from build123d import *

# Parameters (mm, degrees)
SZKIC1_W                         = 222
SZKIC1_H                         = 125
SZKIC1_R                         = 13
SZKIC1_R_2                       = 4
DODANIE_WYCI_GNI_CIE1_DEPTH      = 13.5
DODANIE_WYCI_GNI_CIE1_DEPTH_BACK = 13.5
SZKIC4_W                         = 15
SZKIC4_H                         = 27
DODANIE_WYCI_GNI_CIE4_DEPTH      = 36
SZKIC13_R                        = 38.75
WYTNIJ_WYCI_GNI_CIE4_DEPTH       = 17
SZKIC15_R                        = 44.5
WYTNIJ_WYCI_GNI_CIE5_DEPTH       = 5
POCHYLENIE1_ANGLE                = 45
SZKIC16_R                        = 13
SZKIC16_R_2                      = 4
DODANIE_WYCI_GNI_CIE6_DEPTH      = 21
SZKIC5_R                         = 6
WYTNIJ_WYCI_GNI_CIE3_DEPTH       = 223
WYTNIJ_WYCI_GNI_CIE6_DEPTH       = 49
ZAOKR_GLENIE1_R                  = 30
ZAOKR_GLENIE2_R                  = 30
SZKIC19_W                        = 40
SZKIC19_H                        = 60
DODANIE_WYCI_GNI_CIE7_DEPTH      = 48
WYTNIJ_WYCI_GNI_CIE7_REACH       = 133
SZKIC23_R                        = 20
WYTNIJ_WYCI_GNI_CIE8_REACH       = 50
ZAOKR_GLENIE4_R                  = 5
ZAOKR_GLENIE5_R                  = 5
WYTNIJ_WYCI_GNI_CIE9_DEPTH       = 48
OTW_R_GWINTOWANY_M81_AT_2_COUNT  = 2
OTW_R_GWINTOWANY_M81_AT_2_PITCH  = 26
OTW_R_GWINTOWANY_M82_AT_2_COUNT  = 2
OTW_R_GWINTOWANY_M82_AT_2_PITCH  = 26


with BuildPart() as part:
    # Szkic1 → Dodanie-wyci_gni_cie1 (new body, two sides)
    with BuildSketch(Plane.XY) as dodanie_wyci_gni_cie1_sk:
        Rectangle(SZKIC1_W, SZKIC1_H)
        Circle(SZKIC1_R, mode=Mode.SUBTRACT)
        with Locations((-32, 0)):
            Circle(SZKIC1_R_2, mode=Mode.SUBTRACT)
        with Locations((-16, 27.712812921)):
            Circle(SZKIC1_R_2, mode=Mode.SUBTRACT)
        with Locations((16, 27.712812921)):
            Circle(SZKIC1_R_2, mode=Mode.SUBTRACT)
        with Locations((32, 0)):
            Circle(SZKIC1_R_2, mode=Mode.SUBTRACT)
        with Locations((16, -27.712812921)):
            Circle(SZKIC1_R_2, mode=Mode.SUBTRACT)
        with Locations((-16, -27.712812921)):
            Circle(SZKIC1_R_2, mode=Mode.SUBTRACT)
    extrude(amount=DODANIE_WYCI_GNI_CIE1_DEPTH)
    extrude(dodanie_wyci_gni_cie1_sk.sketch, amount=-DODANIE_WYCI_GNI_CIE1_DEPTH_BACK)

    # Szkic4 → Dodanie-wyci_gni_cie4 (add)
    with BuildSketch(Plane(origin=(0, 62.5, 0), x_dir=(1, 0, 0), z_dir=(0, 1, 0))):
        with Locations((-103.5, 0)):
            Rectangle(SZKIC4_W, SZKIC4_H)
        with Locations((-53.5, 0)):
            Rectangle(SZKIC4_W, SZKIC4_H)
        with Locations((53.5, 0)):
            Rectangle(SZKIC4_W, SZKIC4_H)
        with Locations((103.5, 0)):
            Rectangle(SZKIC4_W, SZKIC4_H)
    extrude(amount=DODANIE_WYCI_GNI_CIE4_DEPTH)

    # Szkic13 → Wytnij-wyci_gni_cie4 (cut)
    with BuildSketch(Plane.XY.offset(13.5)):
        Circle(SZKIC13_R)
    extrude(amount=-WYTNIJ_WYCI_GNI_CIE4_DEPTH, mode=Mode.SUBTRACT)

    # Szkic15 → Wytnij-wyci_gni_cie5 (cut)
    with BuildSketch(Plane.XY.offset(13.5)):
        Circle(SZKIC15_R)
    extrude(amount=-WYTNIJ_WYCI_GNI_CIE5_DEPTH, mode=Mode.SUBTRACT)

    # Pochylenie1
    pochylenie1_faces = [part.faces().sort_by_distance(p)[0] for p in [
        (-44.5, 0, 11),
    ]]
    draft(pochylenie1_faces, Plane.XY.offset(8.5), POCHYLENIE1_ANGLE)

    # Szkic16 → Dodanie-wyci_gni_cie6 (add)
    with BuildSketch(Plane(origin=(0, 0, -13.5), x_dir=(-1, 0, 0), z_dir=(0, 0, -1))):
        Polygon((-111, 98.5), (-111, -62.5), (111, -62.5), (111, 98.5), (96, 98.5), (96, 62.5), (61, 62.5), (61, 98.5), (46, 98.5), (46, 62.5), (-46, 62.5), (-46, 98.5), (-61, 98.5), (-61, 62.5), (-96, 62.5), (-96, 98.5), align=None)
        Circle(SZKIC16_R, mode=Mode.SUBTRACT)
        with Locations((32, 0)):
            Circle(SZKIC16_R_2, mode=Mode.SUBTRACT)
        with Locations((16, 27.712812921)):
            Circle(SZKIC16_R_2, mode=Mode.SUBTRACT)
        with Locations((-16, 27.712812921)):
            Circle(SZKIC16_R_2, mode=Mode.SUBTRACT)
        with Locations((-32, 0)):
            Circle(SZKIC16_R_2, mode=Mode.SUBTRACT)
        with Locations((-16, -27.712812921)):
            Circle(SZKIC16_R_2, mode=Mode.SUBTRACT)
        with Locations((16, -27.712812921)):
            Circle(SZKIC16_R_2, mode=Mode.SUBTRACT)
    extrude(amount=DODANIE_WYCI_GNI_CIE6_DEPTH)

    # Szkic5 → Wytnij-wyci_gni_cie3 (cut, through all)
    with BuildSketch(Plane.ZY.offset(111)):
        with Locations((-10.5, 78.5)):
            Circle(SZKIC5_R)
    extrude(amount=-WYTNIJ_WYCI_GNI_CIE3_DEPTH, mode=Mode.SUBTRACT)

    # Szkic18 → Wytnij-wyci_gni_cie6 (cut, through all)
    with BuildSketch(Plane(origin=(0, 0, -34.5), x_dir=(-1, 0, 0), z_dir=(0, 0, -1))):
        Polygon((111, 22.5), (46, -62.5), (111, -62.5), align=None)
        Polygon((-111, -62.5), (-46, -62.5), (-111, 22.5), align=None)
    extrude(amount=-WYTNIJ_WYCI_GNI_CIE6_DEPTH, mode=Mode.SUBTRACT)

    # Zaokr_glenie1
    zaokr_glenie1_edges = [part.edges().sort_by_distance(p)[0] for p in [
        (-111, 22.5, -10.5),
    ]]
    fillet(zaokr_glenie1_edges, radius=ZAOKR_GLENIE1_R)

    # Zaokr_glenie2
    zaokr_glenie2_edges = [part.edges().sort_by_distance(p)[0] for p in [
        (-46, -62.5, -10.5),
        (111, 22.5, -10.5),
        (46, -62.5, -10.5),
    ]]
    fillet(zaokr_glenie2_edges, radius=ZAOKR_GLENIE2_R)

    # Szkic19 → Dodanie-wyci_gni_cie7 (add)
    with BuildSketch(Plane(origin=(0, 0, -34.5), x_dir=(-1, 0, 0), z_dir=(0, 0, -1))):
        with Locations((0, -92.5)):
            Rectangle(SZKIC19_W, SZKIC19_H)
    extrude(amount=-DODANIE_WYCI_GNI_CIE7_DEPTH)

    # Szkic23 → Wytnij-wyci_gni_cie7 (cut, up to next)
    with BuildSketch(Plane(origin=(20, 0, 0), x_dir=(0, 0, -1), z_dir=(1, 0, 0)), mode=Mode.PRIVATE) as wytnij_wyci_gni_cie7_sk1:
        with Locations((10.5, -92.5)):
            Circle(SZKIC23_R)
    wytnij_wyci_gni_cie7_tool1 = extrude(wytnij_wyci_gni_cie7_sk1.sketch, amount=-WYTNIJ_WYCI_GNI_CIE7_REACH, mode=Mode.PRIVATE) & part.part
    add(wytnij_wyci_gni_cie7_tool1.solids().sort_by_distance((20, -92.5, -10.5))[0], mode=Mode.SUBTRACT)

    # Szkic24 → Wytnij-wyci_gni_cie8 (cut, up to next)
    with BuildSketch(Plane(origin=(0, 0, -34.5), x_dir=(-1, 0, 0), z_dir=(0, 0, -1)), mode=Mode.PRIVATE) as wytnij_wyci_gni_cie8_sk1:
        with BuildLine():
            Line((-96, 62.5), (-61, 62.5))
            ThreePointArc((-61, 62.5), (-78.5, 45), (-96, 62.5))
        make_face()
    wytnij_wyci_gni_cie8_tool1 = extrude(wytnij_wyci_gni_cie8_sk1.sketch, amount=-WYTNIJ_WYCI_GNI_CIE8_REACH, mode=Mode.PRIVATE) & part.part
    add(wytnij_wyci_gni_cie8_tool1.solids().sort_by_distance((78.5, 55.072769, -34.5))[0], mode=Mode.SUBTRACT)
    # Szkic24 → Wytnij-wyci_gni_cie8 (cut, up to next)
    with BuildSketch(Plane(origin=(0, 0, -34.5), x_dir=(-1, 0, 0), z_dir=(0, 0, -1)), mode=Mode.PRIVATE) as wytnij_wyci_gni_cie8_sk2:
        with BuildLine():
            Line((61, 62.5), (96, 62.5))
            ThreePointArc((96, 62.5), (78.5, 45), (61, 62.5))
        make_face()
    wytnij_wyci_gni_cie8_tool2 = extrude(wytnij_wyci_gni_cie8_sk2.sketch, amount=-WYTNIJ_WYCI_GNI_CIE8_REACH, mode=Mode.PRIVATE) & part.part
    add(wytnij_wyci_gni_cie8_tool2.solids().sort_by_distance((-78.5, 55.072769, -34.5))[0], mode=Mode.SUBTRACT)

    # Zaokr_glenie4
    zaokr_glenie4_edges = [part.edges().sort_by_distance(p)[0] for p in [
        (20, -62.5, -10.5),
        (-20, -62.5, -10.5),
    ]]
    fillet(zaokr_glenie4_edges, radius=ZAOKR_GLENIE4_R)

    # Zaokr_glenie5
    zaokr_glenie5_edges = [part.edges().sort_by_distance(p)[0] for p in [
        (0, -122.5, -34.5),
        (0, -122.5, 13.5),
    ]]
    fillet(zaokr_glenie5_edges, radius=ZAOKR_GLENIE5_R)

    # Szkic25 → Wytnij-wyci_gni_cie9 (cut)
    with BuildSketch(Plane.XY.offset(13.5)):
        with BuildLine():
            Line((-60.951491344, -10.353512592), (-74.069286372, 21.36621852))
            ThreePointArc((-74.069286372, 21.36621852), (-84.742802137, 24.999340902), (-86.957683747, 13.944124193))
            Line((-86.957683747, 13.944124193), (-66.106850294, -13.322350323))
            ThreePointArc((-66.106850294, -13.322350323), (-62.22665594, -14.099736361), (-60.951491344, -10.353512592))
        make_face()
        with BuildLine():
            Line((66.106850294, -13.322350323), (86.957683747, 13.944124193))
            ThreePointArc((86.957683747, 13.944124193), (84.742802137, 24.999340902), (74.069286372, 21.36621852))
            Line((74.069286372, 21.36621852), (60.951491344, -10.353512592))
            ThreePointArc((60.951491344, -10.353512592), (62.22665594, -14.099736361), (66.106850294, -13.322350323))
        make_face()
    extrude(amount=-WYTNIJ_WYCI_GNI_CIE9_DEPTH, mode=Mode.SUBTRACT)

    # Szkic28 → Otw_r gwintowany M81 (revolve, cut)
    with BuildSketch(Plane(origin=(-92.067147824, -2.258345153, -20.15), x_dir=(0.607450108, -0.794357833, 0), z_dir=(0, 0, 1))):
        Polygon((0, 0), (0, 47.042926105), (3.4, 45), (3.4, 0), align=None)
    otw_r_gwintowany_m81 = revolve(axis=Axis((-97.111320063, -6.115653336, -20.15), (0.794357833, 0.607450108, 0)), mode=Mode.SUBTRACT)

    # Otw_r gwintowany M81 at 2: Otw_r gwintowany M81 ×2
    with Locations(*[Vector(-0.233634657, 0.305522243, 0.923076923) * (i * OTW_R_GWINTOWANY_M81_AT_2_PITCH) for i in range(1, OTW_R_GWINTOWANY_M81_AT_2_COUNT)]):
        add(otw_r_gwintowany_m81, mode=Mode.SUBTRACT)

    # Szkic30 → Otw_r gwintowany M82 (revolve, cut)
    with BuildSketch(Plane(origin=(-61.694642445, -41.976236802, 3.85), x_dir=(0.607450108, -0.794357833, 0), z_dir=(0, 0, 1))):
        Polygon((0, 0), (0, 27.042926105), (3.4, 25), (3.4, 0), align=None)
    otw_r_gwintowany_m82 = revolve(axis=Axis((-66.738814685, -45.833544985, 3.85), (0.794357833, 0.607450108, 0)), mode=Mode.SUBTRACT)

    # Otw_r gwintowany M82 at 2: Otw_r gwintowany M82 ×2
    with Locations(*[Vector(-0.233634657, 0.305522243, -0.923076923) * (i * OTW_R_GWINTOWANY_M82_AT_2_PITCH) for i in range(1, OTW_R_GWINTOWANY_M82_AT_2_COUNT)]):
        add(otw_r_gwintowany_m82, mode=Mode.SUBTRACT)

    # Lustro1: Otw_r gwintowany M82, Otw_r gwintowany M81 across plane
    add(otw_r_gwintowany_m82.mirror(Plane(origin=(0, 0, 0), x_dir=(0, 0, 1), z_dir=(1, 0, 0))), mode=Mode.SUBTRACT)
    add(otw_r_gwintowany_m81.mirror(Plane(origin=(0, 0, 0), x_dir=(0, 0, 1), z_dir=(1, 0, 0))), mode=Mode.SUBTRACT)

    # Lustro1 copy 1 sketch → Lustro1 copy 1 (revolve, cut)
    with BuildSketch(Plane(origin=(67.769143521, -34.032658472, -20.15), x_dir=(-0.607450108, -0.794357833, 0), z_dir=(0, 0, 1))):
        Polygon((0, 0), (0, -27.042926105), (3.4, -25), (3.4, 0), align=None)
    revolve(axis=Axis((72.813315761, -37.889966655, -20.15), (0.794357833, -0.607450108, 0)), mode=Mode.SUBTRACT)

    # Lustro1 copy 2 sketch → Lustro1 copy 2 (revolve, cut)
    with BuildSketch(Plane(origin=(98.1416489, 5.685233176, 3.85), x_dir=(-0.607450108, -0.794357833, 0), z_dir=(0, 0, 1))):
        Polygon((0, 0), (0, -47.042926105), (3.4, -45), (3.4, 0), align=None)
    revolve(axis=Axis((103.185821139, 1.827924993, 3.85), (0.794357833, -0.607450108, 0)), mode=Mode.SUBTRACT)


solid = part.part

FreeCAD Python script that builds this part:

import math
import FreeCAD as App
import Part
import Sketcher

V = App.Vector


def edges_at(feature, points):
    """Names of the edges that pass closest to the given points."""
    edges = feature.Shape.Edges
    near = lambda p: min(range(len(edges)), key=lambda i: edges[i].distToShape(Part.Vertex(*p))[0])
    return sorted({f"Edge{near(p) + 1}" for p in points})


def faces_at(feature, points):
    """Names of the faces that lie closest to the given points."""
    faces = feature.Shape.Faces
    near = lambda p: min(range(len(faces)), key=lambda i: faces[i].distToShape(Part.Vertex(*p))[0])
    return sorted({f"Face{near(p) + 1}" for p in points})


def add_polygon(sketch, points):
    """Adds a closed chain of lines whose ends are joined by coincident constraints."""
    first, n = sketch.GeometryCount, len(points)
    for a, b in zip(points, points[1:] + points[:1]):
        sketch.addGeometry(Part.LineSegment(App.Vector(*a, 0), App.Vector(*b, 0)), False)
    for i in range(n):
        sketch.addConstraint(Sketcher.Constraint("Coincident", first + i, 2, first + (i + 1) % n, 1))

doc = App.newDocument("Part")
body = doc.addObject("PartDesign::Body", "Body")

sketch1 = doc.addObject("Sketcher::SketchObject", "Sketch")
body.addObject(sketch1)
sketch1.AttachmentSupport = (doc.XY_Plane, [""])
sketch1.MapMode = "FlatFace"
add_polygon(sketch1, [(-111, 62.5), (-111, -62.5), (111, -62.5), (111, 62.5)])
sketch1.addGeometry(Part.Circle(V(-16, -27.7, 0), V(0, 0, 1), 4), False)
sketch1.addGeometry(Part.Circle(V(16, -27.7, 0), V(0, 0, 1), 4), False)
sketch1.addGeometry(Part.Circle(V(-32, 0, 0), V(0, 0, 1), 4), False)
sketch1.addGeometry(Part.Circle(V(-16, 27.7, 0), V(0, 0, 1), 4), False)
sketch1.addGeometry(Part.Circle(V(0, 0, 0), V(0, 0, 1), 13), False)
sketch1.addGeometry(Part.Circle(V(32, 0, 0), V(0, 0, 1), 4), False)
sketch1.addGeometry(Part.Circle(V(16, 27.7, 0), V(0, 0, 1), 4), False)
sketch1.addConstraint([
    Sketcher.Constraint("Vertical", 0),
    Sketcher.Constraint("Horizontal", 1),
    Sketcher.Constraint("Vertical", 2),
    Sketcher.Constraint("Horizontal", 3),
    Sketcher.Constraint("Coincident", 8, 3, -1, 1),
    Sketcher.Constraint("Equal", 4, 5),
    Sketcher.Constraint("Equal", 5, 6),
    Sketcher.Constraint("Equal", 6, 7),
    Sketcher.Constraint("Equal", 7, 9),
    Sketcher.Constraint("Equal", 9, 10),
    Sketcher.Constraint("Symmetric", 5, 3, 7, 3, -1, 1),
    Sketcher.Constraint("Symmetric", 6, 3, 9, 3, -1, 1),
    Sketcher.Constraint("Symmetric", 4, 3, 10, 3, -1, 1),
    Sketcher.Constraint("Symmetric", 0, 2, 2, 2, -1, 1),
    Sketcher.Constraint("Symmetric", 4, 3, 5, 3, -2),
    Sketcher.Constraint("PointOnObject", 6, 3, -1),
    Sketcher.Constraint("Diameter", 4, 8.0),
    Sketcher.Constraint("Diameter", 8, 26.0),
    Sketcher.Constraint("DistanceX", 1, 1, 1, 2, 222.0),
    Sketcher.Constraint("DistanceY", 0, 2, 0, 1, 125.0),
    Sketcher.Constraint("DistanceX", 4, 3, -1, 1, 16.0),
    Sketcher.Constraint("DistanceX", 6, 3, -1, 1, 32.0),
    Sketcher.Constraint("DistanceY", 4, 3, -1, 1, 27.712813),
])
pad1 = doc.addObject("PartDesign::Pad", "Pad")
body.addObject(pad1)
pad1.Profile = sketch1
pad1.Type = "TwoLengths"
pad1.Length = 13.5
pad1.Length2 = 13.5

sketch2 = doc.addObject("Sketcher::SketchObject", "Sketch001")
body.addObject(sketch2)
sketch2.AttachmentSupport = (doc.XZ_Plane, [""])
sketch2.MapMode = "FlatFace"
sketch2.AttachmentOffset = App.Placement(V(0, 0, -62.5), App.Rotation())
add_polygon(sketch2, [(-111, -14), (-111, 14), (-96, 14), (-96, -14)])
add_polygon(sketch2, [(-61, -14), (-61, 14), (-46, 14), (-46, -14)])
add_polygon(sketch2, [(46, -14), (46, 14), (61, 14), (61, -14)])
add_polygon(sketch2, [(96, -14), (96, 14), (111, 14), (111, -14)])
sketch2.addConstraint([
    Sketcher.Constraint("Vertical", 0),
    Sketcher.Constraint("Horizontal", 1),
    Sketcher.Constraint("Vertical", 2),
    Sketcher.Constraint("Horizontal", 3),
    Sketcher.Constraint("Vertical", 4),
    Sketcher.Constraint("Horizontal", 5),
    Sketcher.Constraint("Vertical", 6),
    Sketcher.Constraint("Horizontal", 7),
    Sketcher.Constraint("Vertical", 8),
    Sketcher.Constraint("Horizontal", 9),
    Sketcher.Constraint("Vertical", 10),
    Sketcher.Constraint("Horizontal", 11),
    Sketcher.Constraint("Vertical", 12),
    Sketcher.Constraint("Horizontal", 13),
    Sketcher.Constraint("Vertical", 14),
    Sketcher.Constraint("Horizontal", 15),
    Sketcher.Constraint("Symmetric", 6, 2, 8, 2, -1, 1),
    Sketcher.Constraint("Symmetric", 4, 2, 10, 2, -1, 1),
    Sketcher.Constraint("Symmetric", 2, 2, 12, 2, -1, 1),
    Sketcher.Constraint("Symmetric", 0, 2, 14, 2, -1, 1),
    Sketcher.Constraint("Horizontal", 1, 2, 4, 2),
    Sketcher.Constraint("Horizontal", 3, 2, 6, 2),
    Sketcher.Constraint("Horizontal", 5, 2, 8, 2),
    Sketcher.Constraint("Equal", 3, 5),
    Sketcher.Constraint("DistanceX", 1, 1, 1, 2, 15.0),
    Sketcher.Constraint("DistanceY", 0, 1, 0, 2, 27.0),
    Sketcher.Constraint("DistanceX", 0, 2, -1, 1, 111.0),
    Sketcher.Constraint("DistanceX", 4, 2, -1, 1, 61.0),
])
pad2 = doc.addObject("PartDesign::Pad", "Pad001")
body.addObject(pad2)
pad2.Profile = sketch2
pad2.Length = 36
pad2.Reversed = True

sketch3 = doc.addObject("Sketcher::SketchObject", "Sketch002")
body.addObject(sketch3)
sketch3.AttachmentSupport = (doc.XY_Plane, [""])
sketch3.MapMode = "FlatFace"
sketch3.AttachmentOffset = App.Placement(V(0, 0, 13.5), App.Rotation())
sketch3.addGeometry(Part.Circle(V(0, 0, 0), V(0, 0, 1), 39), False)
sketch3.addConstraint([
    Sketcher.Constraint("Coincident", 0, 3, -1, 1),
    Sketcher.Constraint("Diameter", 0, 77.5),
])
pocket1 = doc.addObject("PartDesign::Pocket", "Pocket")
body.addObject(pocket1)
pocket1.Profile = sketch3
pocket1.Length = 17

sketch4 = doc.addObject("Sketcher::SketchObject", "Sketch003")
body.addObject(sketch4)
sketch4.AttachmentSupport = (doc.XY_Plane, [""])
sketch4.MapMode = "FlatFace"
sketch4.AttachmentOffset = App.Placement(V(0, 0, 13.5), App.Rotation())
sketch4.addGeometry(Part.Circle(V(0, 0, 0), V(0, 0, 1), 44), False)
sketch4.addConstraint([
    Sketcher.Constraint("Coincident", 0, 3, -1, 1),
    Sketcher.Constraint("Diameter", 0, 89.0),
])
pocket2 = doc.addObject("PartDesign::Pocket", "Pocket001")
body.addObject(pocket2)
pocket2.Profile = sketch4
pocket2.Length = 5
doc.recompute()

datumplane = doc.addObject("PartDesign::Plane", "DatumPlane")
body.addObject(datumplane)
datumplane.AttachmentSupport = (doc.XY_Plane, [""])
datumplane.MapMode = "FlatFace"
datumplane.AttachmentOffset = App.Placement(V(0, 0, 8.5), App.Rotation())
draft = doc.addObject("PartDesign::Draft", "Draft")
body.addObject(draft)
draft.Base = (pocket2, faces_at(pocket2, [(-44.5, 0, 11)]))
draft.NeutralPlane = (datumplane, [""])
draft.Angle = 45
draft.Reversed = False

sketch5 = doc.addObject("Sketcher::SketchObject", "Sketch004")
body.addObject(sketch5)
sketch5.AttachmentSupport = (doc.XY_Plane, [""])
sketch5.MapMode = "FlatFace"
sketch5.AttachmentOffset = App.Placement(V(0, 0, -13.5), App.Rotation())
add_polygon(sketch5, [(111, 98.5), (111, -62.5), (-111, -62.5), (-111, 98.5), (-96, 98.5), (-96, 62.5), (-61, 62.5), (-61, 98.5), (-46, 98.5), (-46, 62.5), (46, 62.5), (46, 98.5), (61, 98.5), (61, 62.5), (96, 62.5), (96, 98.5)])
sketch5.addGeometry(Part.Circle(V(16, -27.7, 0), V(0, 0, 1), 4), False)
sketch5.addGeometry(Part.Circle(V(-16, -27.7, 0), V(0, 0, 1), 4), False)
sketch5.addGeometry(Part.Circle(V(32, 0, 0), V(0, 0, 1), 4), False)
sketch5.addGeometry(Part.Circle(V(16, 27.7, 0), V(0, 0, 1), 4), False)
sketch5.addGeometry(Part.Circle(V(0, 0, 0), V(0, 0, 1), 13), False)
sketch5.addGeometry(Part.Circle(V(-32, 0, 0), V(0, 0, 1), 4), False)
sketch5.addGeometry(Part.Circle(V(-16, 27.7, 0), V(0, 0, 1), 4), False)
sketch5.addConstraint([
    Sketcher.Constraint("Vertical", 0),
    Sketcher.Constraint("Horizontal", 1),
    Sketcher.Constraint("Vertical", 2),
    Sketcher.Constraint("Horizontal", 3),
    Sketcher.Constraint("Vertical", 4),
    Sketcher.Constraint("Horizontal", 5),
    Sketcher.Constraint("Vertical", 6),
    Sketcher.Constraint("Horizontal", 7),
    Sketcher.Constraint("Vertical", 8),
    Sketcher.Constraint("Horizontal", 9),
    Sketcher.Constraint("Vertical", 10),
    Sketcher.Constraint("Horizontal", 11),
    Sketcher.Constraint("Vertical", 12),
    Sketcher.Constraint("Horizontal", 13),
    Sketcher.Constraint("Vertical", 14),
    Sketcher.Constraint("Horizontal", 15),
    Sketcher.Constraint("Coincident", 20, 3, -1, 1),
    Sketcher.Constraint("Equal", 16, 17),
    Sketcher.Constraint("Equal", 17, 18),
    Sketcher.Constraint("Equal", 18, 19),
    Sketcher.Constraint("Equal", 19, 21),
    Sketcher.Constraint("Equal", 21, 22),
    Sketcher.Constraint("Symmetric", 17, 3, 19, 3, -1, 1),
    Sketcher.Constraint("Symmetric", 18, 3, 21, 3, -1, 1),
    Sketcher.Constraint("Symmetric", 16, 3, 22, 3, -1, 1),
    Sketcher.Constraint("Symmetric", 16, 3, 17, 3, -2),
    Sketcher.Constraint("Symmetric", 7, 2, 10, 2, -2),
    Sketcher.Constraint("Symmetric", 5, 2, 12, 2, -2),
    Sketcher.Constraint("Symmetric", 3, 2, 14, 2, -2),
    Sketcher.Constraint("PointOnObject", 18, 3, -1),
    Sketcher.Constraint("Horizontal", 3, 2, 6, 2),
    Sketcher.Constraint("Horizontal", 5, 2, 8, 2),
    Sketcher.Constraint("Equal", 3, 7),
    Sketcher.Constraint("Equal", 11, 15),
    Sketcher.Constraint("Diameter", 16, 8.0),
    Sketcher.Constraint("Diameter", 20, 26.0),
    Sketcher.Constraint("DistanceX", 1, 2, 1, 1, 222.0),
    Sketcher.Constraint("DistanceX", 3, 1, 3, 2, 15.0),
    Sketcher.Constraint("DistanceX", 5, 1, 5, 2, 35.0),
    Sketcher.Constraint("DistanceY", 0, 2, 0, 1, 161.0),
    Sketcher.Constraint("DistanceY", 4, 2, 4, 1, 36.0),
    Sketcher.Constraint("DistanceX", -1, 1, 16, 3, 16.0),
    Sketcher.Constraint("DistanceX", -1, 1, 18, 3, 32.0),
    Sketcher.Constraint("DistanceY", 0, 2, -1, 1, 62.5),
    Sketcher.Constraint("DistanceY", 16, 3, -1, 1, 27.712813),
])
pad3 = doc.addObject("PartDesign::Pad", "Pad002")
body.addObject(pad3)
pad3.Profile = sketch5
pad3.Length = 21
pad3.Reversed = True

sketch6 = doc.addObject("Sketcher::SketchObject", "Sketch005")
body.addObject(sketch6)
sketch6.AttachmentSupport = (doc.YZ_Plane, [""])
sketch6.MapMode = "FlatFace"
sketch6.AttachmentOffset = App.Placement(V(0, 0, -111), App.Rotation())
sketch6.addGeometry(Part.Circle(V(78, -10, 0), V(0, 0, 1), 6), False)
sketch6.addConstraint([
    Sketcher.Constraint("Diameter", 0, 12.0),
    Sketcher.Constraint("DistanceX", -1, 1, 0, 3, 78.5),
    Sketcher.Constraint("DistanceY", 0, 3, -1, 1, 10.5),
])
pocket3 = doc.addObject("PartDesign::Pocket", "Pocket002")
body.addObject(pocket3)
pocket3.Profile = sketch6
pocket3.Type = "ThroughAll"
pocket3.Reversed = True

sketch7 = doc.addObject("Sketcher::SketchObject", "Sketch006")
body.addObject(sketch7)
sketch7.AttachmentSupport = (doc.XY_Plane, [""])
sketch7.MapMode = "FlatFace"
sketch7.AttachmentOffset = App.Placement(V(0, 0, -34.5), App.Rotation())
add_polygon(sketch7, [(-111, 22), (-46, -62), (-111, -62)])
add_polygon(sketch7, [(111, -62), (46, -62), (111, 22)])
sketch7.addConstraint([
    Sketcher.Constraint("Horizontal", 1),
    Sketcher.Constraint("Vertical", 2),
    Sketcher.Constraint("Horizontal", 3),
    Sketcher.Constraint("Vertical", 5),
    Sketcher.Constraint("Symmetric", 0, 2, 3, 2, -2),
    Sketcher.Constraint("Symmetric", 2, 2, 4, 2, -2),
    Sketcher.Constraint("DistanceX", 1, 2, 1, 1, 65.0),
    Sketcher.Constraint("DistanceY", 2, 1, 2, 2, 85.0),
    Sketcher.Constraint("DistanceX", 0, 2, -1, 1, 46.0),
    Sketcher.Constraint("DistanceY", 0, 2, -1, 1, 62.5),
])
pocket4 = doc.addObject("PartDesign::Pocket", "Pocket003")
body.addObject(pocket4)
pocket4.Profile = sketch7
pocket4.Type = "ThroughAll"
pocket4.Reversed = True
doc.recompute()

fillet = doc.addObject("PartDesign::Fillet", "Fillet")
body.addObject(fillet)
fillet.Base = (pocket4, edges_at(pocket4, [(-111, 22.5, -10.5)]))
fillet.Radius = 30
doc.recompute()

fillet2 = doc.addObject("PartDesign::Fillet", "Fillet001")
body.addObject(fillet2)
fillet2.Base = (fillet, edges_at(fillet, [(-46, -62.5, -10.5), (111, 22.5, -10.5), (46, -62.5, -10.5)]))
fillet2.Radius = 30

sketch8 = doc.addObject("Sketcher::SketchObject", "Sketch007")
body.addObject(sketch8)
sketch8.AttachmentSupport = (doc.XY_Plane, [""])
sketch8.MapMode = "FlatFace"
sketch8.AttachmentOffset = App.Placement(V(0, 0, -34.5), App.Rotation())
add_polygon(sketch8, [(20, -62), (20, -122), (-20, -122), (-20, -62)])
sketch8.addConstraint([
    Sketcher.Constraint("Vertical", 0),
    Sketcher.Constraint("Horizontal", 1),
    Sketcher.Constraint("Vertical", 2),
    Sketcher.Constraint("Horizontal", 3),
    Sketcher.Constraint("DistanceX", 1, 2, 1, 1, 40.0),
    Sketcher.Constraint("DistanceY", 0, 2, 0, 1, 60.0),
    Sketcher.Constraint("DistanceX", -1, 1, 0, 2, 20.0),
    Sketcher.Constraint("DistanceY", 0, 2, -1, 1, 122.5),
])
pad4 = doc.addObject("PartDesign::Pad", "Pad003")
body.addObject(pad4)
pad4.Profile = sketch8
pad4.Length = 48

sketch9 = doc.addObject("Sketcher::SketchObject", "Sketch008")
body.addObject(sketch9)
sketch9.AttachmentSupport = (doc.YZ_Plane, [""])
sketch9.MapMode = "FlatFace"
sketch9.AttachmentOffset = App.Placement(V(0, 0, 20), App.Rotation())
sketch9.addGeometry(Part.Circle(V(-92, -10, 0), V(0, 0, 1), 20), False)
sketch9.addConstraint([
    Sketcher.Constraint("Diameter", 0, 40.0),
    Sketcher.Constraint("DistanceX", 0, 3, -1, 1, 92.5),
    Sketcher.Constraint("DistanceY", 0, 3, -1, 1, 10.5),
])
pocket5 = doc.addObject("PartDesign::Pocket", "Pocket004")
body.addObject(pocket5)
pocket5.Profile = sketch9
pocket5.Type = "UpToFirst"

sketch10 = doc.addObject("Sketcher::SketchObject", "Sketch009")
body.addObject(sketch10)
sketch10.AttachmentSupport = (doc.XY_Plane, [""])
sketch10.MapMode = "FlatFace"
sketch10.AttachmentOffset = App.Placement(V(0, 0, -34.5), App.Rotation())
sketch10.addGeometry([
    Part.LineSegment(V(61, 62, 0), V(96, 62, 0)),
    Part.ArcOfCircle(Part.Circle(V(78, 62, 0), V(0, 0, 1), 18), math.radians(180), math.radians(360)),
], False)
sketch10.addConstraint([
    Sketcher.Constraint("Coincident", 0, 1, 1, 1),
    Sketcher.Constraint("Coincident", 1, 2, 0, 2),
    Sketcher.Constraint("Horizontal", 0),
    Sketcher.Constraint("Horizontal", 1, 3, 0, 1),
    Sketcher.Constraint("Radius", 1, 17.5),
    Sketcher.Constraint("DistanceX", -1, 1, 0, 1, 61.0),
    Sketcher.Constraint("DistanceY", -1, 1, 1, 3, 62.5),
])
pocket6 = doc.addObject("PartDesign::Pocket", "Pocket005")
body.addObject(pocket6)
pocket6.Profile = sketch10
pocket6.Type = "UpToFirst"
pocket6.Reversed = True

sketch11 = doc.addObject("Sketcher::SketchObject", "Sketch010")
body.addObject(sketch11)
sketch11.AttachmentSupport = (doc.XY_Plane, [""])
sketch11.MapMode = "FlatFace"
sketch11.AttachmentOffset = App.Placement(V(0, 0, -34.5), App.Rotation())
sketch11.addGeometry([
    Part.LineSegment(V(-96, 62, 0), V(-61, 62, 0)),
    Part.ArcOfCircle(Part.Circle(V(-78, 62, 0), V(0, 0, 1), 18), math.radians(180), math.radians(360)),
], False)
sketch11.addConstraint([
    Sketcher.Constraint("Coincident", 0, 1, 1, 1),
    Sketcher.Constraint("Coincident", 1, 2, 0, 2),
    Sketcher.Constraint("Horizontal", 0),
    Sketcher.Constraint("Horizontal", 1, 3, 0, 1),
    Sketcher.Constraint("Radius", 1, 17.5),
    Sketcher.Constraint("DistanceX", 0, 1, -1, 1, 96.0),
    Sketcher.Constraint("DistanceY", -1, 1, 1, 3, 62.5),
])
pocket7 = doc.addObject("PartDesign::Pocket", "Pocket006")
body.addObject(pocket7)
pocket7.Profile = sketch11
pocket7.Type = "UpToFirst"
pocket7.Reversed = True
doc.recompute()

fillet3 = doc.addObject("PartDesign::Fillet", "Fillet002")
body.addObject(fillet3)
fillet3.Base = (pocket7, edges_at(pocket7, [(20, -62.5, -10.5), (-20, -62.5, -10.5)]))
fillet3.Radius = 5
doc.recompute()

fillet4 = doc.addObject("PartDesign::Fillet", "Fillet003")
body.addObject(fillet4)
fillet4.Base = (fillet3, edges_at(fillet3, [(0, -122.5, -34.5), (0, -122.5, 13.5)]))
fillet4.Radius = 5

sketch12 = doc.addObject("Sketcher::SketchObject", "Sketch011")
body.addObject(sketch12)
sketch12.AttachmentSupport = (doc.XY_Plane, [""])
sketch12.MapMode = "FlatFace"
sketch12.AttachmentOffset = App.Placement(V(0, 0, 13.5), App.Rotation())
sketch12.addGeometry([
    Part.LineSegment(V(-61, -10.4, 0), V(-74.1, 21.4, 0)),
    Part.ArcOfCircle(Part.Circle(V(-81, 18.5, 0), V(0, 0, 1), 7.5), math.radians(22), math.radians(217)),
    Part.LineSegment(V(-87, 13.9, 0), V(-66.1, -13.3, 0)),
    Part.ArcOfCircle(Part.Circle(V(-63.7, -11.5, 0), V(0, 0, 1), 3), math.radians(-143), math.radians(22)),
    Part.LineSegment(V(66.1, -13.3, 0), V(87, 13.9, 0)),
    Part.ArcOfCircle(Part.Circle(V(81, 18.5, 0), V(0, 0, 1), 7.5), math.radians(-37), math.radians(158)),
    Part.LineSegment(V(74.1, 21.4, 0), V(61, -10.4, 0)),
    Part.ArcOfCircle(Part.Circle(V(63.7, -11.5, 0), V(0, 0, 1), 3), math.radians(158), math.radians(323)),
], False)
sketch12.addConstraint([
    Sketcher.Constraint("Tangent", 0, 2, 1, 1),
    Sketcher.Constraint("Tangent", 1, 2, 2, 1),
    Sketcher.Constraint("Tangent", 2, 2, 3, 1),
    Sketcher.Constraint("Tangent", 3, 2, 0, 1),
    Sketcher.Constraint("Tangent", 4, 2, 5, 1),
    Sketcher.Constraint("Tangent", 5, 2, 6, 1),
    Sketcher.Constraint("Tangent", 6, 2, 7, 1),
    Sketcher.Constraint("Tangent", 7, 2, 4, 1),
    Sketcher.Constraint("Equal", 1, 5),
    Sketcher.Constraint("Equal", 3, 7),
    Sketcher.Constraint("Symmetric", 1, 3, 5, 3, -2),
    Sketcher.Constraint("Symmetric", 3, 3, 7, 3, -2),
    Sketcher.Constraint("Radius", 3, 3.0),
    Sketcher.Constraint("Radius", 1, 7.5),
    Sketcher.Constraint("DistanceX", 1, 3, -1, 1, 81.0),
    Sketcher.Constraint("DistanceY", 3, 3, 1, 3, 30.0),
    Sketcher.Constraint("DistanceY", -1, 1, 1, 3, 18.5),
    Sketcher.Constraint("Distance", 0, 34.325179),
])
pocket8 = doc.addObject("PartDesign::Pocket", "Pocket007")
body.addObject(pocket8)
pocket8.Profile = sketch12
pocket8.Length = 48

sketch13 = doc.addObject("Sketcher::SketchObject", "Sketch012")
body.addObject(sketch13)
sketch13.AttachmentSupport = (doc.XY_Plane, [""])
sketch13.MapMode = "FlatFace"
sketch13.AttachmentOffset = App.Placement(V(0, 0, -20.15), App.Rotation())
add_polygon(sketch13, [(-54.7, 26.3), (-92.1, -2.3), (-90, -5), (-54.3, 22.4)])
sketch13.addGeometry(Part.LineSegment(V(-92.1, -2.3, 0), V(-54.7, 26.3, 0)), True)
sketch13.addConstraint([
    Sketcher.Constraint("Coincident", 4, 1, 0, 2),
    Sketcher.Constraint("Coincident", 4, 2, 3, 2),
    Sketcher.Constraint("Perpendicular", 0, 1),
    Sketcher.Constraint("Perpendicular", 1, 2),
    Sketcher.Constraint("Distance", 2, 45.0),
    Sketcher.Constraint("Distance", 1, 3.4),
    Sketcher.Constraint("DistanceY", 1, 2, -1, 1, 4.959162),
    Sketcher.Constraint("DistanceX", 3, 2, -1, 1, 54.698231),
    Sketcher.Constraint("DistanceX", 0, 2, 1, 2, 2.06533),
    Sketcher.Constraint("DistanceY", 0, 2, 3, 2, 28.576231),
])
groove = doc.addObject("PartDesign::Groove", "Groove")
body.addObject(groove)
groove.Profile = sketch13
groove.ReferenceAxis = (sketch13, ["Axis0"])
groove.Angle = 360
doc.recompute()

datumline = doc.addObject("PartDesign::Line", "DatumLine")
body.addObject(datumline)
datumline.Placement = App.Placement(V(0, 0, 0), App.Rotation(V(0, 0, 1), V(-0.233634657, 0.305522243, 0.923076923)))
linearpattern = doc.addObject("PartDesign::LinearPattern", "LinearPattern")
body.addObject(linearpattern)
linearpattern.Originals = [groove]
linearpattern.Direction = (datumline, [""])
linearpattern.Mode = "offset"
linearpattern.Offset = 26
linearpattern.Occurrences = 2
body.Tip = linearpattern

sketch14 = doc.addObject("Sketcher::SketchObject", "Sketch013")
body.addObject(sketch14)
sketch14.AttachmentSupport = (doc.XY_Plane, [""])
sketch14.MapMode = "FlatFace"
sketch14.AttachmentOffset = App.Placement(V(0, 0, 3.85), App.Rotation())
add_polygon(sketch14, [(-40.2, -25.5), (-61.7, -42), (-59.6, -44.7), (-39.8, -29.5)])
sketch14.addGeometry(Part.LineSegment(V(-61.7, -42, 0), V(-40.2, -25.5, 0)), True)
sketch14.addConstraint([
    Sketcher.Constraint("Coincident", 4, 1, 0, 2),
    Sketcher.Constraint("Coincident", 4, 2, 3, 2),
    Sketcher.Constraint("Perpendicular", 0, 1),
    Sketcher.Constraint("Perpendicular", 1, 2),
    Sketcher.Constraint("Distance", 2, 25.0),
    Sketcher.Constraint("Distance", 1, 3.4),
    Sketcher.Constraint("DistanceY", 2, 2, -1, 1, 29.490801),
    Sketcher.Constraint("DistanceY", 3, 2, -1, 1, 25.549008),
    Sketcher.Constraint("DistanceX", 0, 2, 1, 2, 2.06533),
    Sketcher.Constraint("DistanceX", 0, 2, -1, 1, 61.694642),
])
groove2 = doc.addObject("PartDesign::Groove", "Groove001")
body.addObject(groove2)
groove2.Profile = sketch14
groove2.ReferenceAxis = (sketch14, ["Axis0"])
groove2.Angle = 360
doc.recompute()

datumline2 = doc.addObject("PartDesign::Line", "DatumLine001")
body.addObject(datumline2)
datumline2.Placement = App.Placement(V(0, 0, 0), App.Rotation(V(0, 0, 1), V(-0.233634657, 0.305522243, -0.923076923)))
linearpattern2 = doc.addObject("PartDesign::LinearPattern", "LinearPattern001")
body.addObject(linearpattern2)
linearpattern2.Originals = [groove2]
linearpattern2.Direction = (datumline2, [""])
linearpattern2.Mode = "offset"
linearpattern2.Offset = 26
linearpattern2.Occurrences = 2
body.Tip = linearpattern2
doc.recompute()

mirrored = doc.addObject("PartDesign::Mirrored", "Mirrored")
body.addObject(mirrored)
mirrored.Originals = [groove2, groove]
mirrored.MirrorPlane = (doc.YZ_Plane, [""])
body.Tip = mirrored

sketch15 = doc.addObject("Sketcher::SketchObject", "Sketch014")
body.addObject(sketch15)
sketch15.AttachmentSupport = (doc.XY_Plane, [""])
sketch15.MapMode = "FlatFace"
sketch15.AttachmentOffset = App.Placement(V(0, 0, -20.15), App.Rotation())
add_polygon(sketch15, [(67.8, -34), (46.3, -17.6), (45.8, -21.5), (65.7, -36.7)])
sketch15.addGeometry(Part.LineSegment(V(46.3, -17.6, 0), V(67.8, -34, 0)), True)
sketch15.addConstraint([
    Sketcher.Constraint("Coincident", 4, 1, 0, 2),
    Sketcher.Constraint("Coincident", 4, 2, 3, 2),
    Sketcher.Constraint("Parallel", 0, 2),
    Sketcher.Constraint("Perpendicular", 2, 3),
    Sketcher.Constraint("Distance", 2, 25.0),
    Sketcher.Constraint("Distance", 3, 3.4),
    Sketcher.Constraint("DistanceY", 0, 2, -1, 1, 17.60543),
    Sketcher.Constraint("DistanceY", 3, 2, -1, 1, 34.032658),
    Sketcher.Constraint("DistanceX", 0, 2, 2, 2, 19.41643),
    Sketcher.Constraint("DistanceX", -1, 1, 0, 2, 46.287383),
])
groove3 = doc.addObject("PartDesign::Groove", "Groove002")
body.addObject(groove3)
groove3.Profile = sketch15
groove3.ReferenceAxis = (sketch15, ["Axis0"])
groove3.Angle = 360

sketch16 = doc.addObject("Sketcher::SketchObject", "Sketch015")
body.addObject(sketch16)
sketch16.AttachmentSupport = (doc.XY_Plane, [""])
sketch16.MapMode = "FlatFace"
sketch16.AttachmentOffset = App.Placement(V(0, 0, 3.85), App.Rotation())
add_polygon(sketch16, [(98.1, 5.7), (60.8, 34.3), (60.3, 30.3), (96.1, 3)])
sketch16.addGeometry(Part.LineSegment(V(60.8, 34.3, 0), V(98.1, 5.7, 0)), True)
sketch16.addConstraint([
    Sketcher.Constraint("Coincident", 4, 1, 0, 2),
    Sketcher.Constraint("Coincident", 4, 2, 3, 2),
    Sketcher.Constraint("Parallel", 0, 2),
    Sketcher.Constraint("Perpendicular", 2, 3),
    Sketcher.Constraint("Distance", 2, 45.0),
    Sketcher.Constraint("Distance", 3, 3.4),
    Sketcher.Constraint("DistanceY", -1, 1, 1, 2, 30.319671),
    Sketcher.Constraint("DistanceX", -1, 1, 2, 2, 96.076319),
    Sketcher.Constraint("DistanceX", -1, 1, 3, 2, 98.141649),
    Sketcher.Constraint("DistanceY", 3, 2, 0, 2, 28.576231),
])
groove4 = doc.addObject("PartDesign::Groove", "Groove003")
body.addObject(groove4)
groove4.Profile = sketch16
groove4.ReferenceAxis = (sketch16, ["Axis0"])
groove4.Angle = 360

doc.recompute()
